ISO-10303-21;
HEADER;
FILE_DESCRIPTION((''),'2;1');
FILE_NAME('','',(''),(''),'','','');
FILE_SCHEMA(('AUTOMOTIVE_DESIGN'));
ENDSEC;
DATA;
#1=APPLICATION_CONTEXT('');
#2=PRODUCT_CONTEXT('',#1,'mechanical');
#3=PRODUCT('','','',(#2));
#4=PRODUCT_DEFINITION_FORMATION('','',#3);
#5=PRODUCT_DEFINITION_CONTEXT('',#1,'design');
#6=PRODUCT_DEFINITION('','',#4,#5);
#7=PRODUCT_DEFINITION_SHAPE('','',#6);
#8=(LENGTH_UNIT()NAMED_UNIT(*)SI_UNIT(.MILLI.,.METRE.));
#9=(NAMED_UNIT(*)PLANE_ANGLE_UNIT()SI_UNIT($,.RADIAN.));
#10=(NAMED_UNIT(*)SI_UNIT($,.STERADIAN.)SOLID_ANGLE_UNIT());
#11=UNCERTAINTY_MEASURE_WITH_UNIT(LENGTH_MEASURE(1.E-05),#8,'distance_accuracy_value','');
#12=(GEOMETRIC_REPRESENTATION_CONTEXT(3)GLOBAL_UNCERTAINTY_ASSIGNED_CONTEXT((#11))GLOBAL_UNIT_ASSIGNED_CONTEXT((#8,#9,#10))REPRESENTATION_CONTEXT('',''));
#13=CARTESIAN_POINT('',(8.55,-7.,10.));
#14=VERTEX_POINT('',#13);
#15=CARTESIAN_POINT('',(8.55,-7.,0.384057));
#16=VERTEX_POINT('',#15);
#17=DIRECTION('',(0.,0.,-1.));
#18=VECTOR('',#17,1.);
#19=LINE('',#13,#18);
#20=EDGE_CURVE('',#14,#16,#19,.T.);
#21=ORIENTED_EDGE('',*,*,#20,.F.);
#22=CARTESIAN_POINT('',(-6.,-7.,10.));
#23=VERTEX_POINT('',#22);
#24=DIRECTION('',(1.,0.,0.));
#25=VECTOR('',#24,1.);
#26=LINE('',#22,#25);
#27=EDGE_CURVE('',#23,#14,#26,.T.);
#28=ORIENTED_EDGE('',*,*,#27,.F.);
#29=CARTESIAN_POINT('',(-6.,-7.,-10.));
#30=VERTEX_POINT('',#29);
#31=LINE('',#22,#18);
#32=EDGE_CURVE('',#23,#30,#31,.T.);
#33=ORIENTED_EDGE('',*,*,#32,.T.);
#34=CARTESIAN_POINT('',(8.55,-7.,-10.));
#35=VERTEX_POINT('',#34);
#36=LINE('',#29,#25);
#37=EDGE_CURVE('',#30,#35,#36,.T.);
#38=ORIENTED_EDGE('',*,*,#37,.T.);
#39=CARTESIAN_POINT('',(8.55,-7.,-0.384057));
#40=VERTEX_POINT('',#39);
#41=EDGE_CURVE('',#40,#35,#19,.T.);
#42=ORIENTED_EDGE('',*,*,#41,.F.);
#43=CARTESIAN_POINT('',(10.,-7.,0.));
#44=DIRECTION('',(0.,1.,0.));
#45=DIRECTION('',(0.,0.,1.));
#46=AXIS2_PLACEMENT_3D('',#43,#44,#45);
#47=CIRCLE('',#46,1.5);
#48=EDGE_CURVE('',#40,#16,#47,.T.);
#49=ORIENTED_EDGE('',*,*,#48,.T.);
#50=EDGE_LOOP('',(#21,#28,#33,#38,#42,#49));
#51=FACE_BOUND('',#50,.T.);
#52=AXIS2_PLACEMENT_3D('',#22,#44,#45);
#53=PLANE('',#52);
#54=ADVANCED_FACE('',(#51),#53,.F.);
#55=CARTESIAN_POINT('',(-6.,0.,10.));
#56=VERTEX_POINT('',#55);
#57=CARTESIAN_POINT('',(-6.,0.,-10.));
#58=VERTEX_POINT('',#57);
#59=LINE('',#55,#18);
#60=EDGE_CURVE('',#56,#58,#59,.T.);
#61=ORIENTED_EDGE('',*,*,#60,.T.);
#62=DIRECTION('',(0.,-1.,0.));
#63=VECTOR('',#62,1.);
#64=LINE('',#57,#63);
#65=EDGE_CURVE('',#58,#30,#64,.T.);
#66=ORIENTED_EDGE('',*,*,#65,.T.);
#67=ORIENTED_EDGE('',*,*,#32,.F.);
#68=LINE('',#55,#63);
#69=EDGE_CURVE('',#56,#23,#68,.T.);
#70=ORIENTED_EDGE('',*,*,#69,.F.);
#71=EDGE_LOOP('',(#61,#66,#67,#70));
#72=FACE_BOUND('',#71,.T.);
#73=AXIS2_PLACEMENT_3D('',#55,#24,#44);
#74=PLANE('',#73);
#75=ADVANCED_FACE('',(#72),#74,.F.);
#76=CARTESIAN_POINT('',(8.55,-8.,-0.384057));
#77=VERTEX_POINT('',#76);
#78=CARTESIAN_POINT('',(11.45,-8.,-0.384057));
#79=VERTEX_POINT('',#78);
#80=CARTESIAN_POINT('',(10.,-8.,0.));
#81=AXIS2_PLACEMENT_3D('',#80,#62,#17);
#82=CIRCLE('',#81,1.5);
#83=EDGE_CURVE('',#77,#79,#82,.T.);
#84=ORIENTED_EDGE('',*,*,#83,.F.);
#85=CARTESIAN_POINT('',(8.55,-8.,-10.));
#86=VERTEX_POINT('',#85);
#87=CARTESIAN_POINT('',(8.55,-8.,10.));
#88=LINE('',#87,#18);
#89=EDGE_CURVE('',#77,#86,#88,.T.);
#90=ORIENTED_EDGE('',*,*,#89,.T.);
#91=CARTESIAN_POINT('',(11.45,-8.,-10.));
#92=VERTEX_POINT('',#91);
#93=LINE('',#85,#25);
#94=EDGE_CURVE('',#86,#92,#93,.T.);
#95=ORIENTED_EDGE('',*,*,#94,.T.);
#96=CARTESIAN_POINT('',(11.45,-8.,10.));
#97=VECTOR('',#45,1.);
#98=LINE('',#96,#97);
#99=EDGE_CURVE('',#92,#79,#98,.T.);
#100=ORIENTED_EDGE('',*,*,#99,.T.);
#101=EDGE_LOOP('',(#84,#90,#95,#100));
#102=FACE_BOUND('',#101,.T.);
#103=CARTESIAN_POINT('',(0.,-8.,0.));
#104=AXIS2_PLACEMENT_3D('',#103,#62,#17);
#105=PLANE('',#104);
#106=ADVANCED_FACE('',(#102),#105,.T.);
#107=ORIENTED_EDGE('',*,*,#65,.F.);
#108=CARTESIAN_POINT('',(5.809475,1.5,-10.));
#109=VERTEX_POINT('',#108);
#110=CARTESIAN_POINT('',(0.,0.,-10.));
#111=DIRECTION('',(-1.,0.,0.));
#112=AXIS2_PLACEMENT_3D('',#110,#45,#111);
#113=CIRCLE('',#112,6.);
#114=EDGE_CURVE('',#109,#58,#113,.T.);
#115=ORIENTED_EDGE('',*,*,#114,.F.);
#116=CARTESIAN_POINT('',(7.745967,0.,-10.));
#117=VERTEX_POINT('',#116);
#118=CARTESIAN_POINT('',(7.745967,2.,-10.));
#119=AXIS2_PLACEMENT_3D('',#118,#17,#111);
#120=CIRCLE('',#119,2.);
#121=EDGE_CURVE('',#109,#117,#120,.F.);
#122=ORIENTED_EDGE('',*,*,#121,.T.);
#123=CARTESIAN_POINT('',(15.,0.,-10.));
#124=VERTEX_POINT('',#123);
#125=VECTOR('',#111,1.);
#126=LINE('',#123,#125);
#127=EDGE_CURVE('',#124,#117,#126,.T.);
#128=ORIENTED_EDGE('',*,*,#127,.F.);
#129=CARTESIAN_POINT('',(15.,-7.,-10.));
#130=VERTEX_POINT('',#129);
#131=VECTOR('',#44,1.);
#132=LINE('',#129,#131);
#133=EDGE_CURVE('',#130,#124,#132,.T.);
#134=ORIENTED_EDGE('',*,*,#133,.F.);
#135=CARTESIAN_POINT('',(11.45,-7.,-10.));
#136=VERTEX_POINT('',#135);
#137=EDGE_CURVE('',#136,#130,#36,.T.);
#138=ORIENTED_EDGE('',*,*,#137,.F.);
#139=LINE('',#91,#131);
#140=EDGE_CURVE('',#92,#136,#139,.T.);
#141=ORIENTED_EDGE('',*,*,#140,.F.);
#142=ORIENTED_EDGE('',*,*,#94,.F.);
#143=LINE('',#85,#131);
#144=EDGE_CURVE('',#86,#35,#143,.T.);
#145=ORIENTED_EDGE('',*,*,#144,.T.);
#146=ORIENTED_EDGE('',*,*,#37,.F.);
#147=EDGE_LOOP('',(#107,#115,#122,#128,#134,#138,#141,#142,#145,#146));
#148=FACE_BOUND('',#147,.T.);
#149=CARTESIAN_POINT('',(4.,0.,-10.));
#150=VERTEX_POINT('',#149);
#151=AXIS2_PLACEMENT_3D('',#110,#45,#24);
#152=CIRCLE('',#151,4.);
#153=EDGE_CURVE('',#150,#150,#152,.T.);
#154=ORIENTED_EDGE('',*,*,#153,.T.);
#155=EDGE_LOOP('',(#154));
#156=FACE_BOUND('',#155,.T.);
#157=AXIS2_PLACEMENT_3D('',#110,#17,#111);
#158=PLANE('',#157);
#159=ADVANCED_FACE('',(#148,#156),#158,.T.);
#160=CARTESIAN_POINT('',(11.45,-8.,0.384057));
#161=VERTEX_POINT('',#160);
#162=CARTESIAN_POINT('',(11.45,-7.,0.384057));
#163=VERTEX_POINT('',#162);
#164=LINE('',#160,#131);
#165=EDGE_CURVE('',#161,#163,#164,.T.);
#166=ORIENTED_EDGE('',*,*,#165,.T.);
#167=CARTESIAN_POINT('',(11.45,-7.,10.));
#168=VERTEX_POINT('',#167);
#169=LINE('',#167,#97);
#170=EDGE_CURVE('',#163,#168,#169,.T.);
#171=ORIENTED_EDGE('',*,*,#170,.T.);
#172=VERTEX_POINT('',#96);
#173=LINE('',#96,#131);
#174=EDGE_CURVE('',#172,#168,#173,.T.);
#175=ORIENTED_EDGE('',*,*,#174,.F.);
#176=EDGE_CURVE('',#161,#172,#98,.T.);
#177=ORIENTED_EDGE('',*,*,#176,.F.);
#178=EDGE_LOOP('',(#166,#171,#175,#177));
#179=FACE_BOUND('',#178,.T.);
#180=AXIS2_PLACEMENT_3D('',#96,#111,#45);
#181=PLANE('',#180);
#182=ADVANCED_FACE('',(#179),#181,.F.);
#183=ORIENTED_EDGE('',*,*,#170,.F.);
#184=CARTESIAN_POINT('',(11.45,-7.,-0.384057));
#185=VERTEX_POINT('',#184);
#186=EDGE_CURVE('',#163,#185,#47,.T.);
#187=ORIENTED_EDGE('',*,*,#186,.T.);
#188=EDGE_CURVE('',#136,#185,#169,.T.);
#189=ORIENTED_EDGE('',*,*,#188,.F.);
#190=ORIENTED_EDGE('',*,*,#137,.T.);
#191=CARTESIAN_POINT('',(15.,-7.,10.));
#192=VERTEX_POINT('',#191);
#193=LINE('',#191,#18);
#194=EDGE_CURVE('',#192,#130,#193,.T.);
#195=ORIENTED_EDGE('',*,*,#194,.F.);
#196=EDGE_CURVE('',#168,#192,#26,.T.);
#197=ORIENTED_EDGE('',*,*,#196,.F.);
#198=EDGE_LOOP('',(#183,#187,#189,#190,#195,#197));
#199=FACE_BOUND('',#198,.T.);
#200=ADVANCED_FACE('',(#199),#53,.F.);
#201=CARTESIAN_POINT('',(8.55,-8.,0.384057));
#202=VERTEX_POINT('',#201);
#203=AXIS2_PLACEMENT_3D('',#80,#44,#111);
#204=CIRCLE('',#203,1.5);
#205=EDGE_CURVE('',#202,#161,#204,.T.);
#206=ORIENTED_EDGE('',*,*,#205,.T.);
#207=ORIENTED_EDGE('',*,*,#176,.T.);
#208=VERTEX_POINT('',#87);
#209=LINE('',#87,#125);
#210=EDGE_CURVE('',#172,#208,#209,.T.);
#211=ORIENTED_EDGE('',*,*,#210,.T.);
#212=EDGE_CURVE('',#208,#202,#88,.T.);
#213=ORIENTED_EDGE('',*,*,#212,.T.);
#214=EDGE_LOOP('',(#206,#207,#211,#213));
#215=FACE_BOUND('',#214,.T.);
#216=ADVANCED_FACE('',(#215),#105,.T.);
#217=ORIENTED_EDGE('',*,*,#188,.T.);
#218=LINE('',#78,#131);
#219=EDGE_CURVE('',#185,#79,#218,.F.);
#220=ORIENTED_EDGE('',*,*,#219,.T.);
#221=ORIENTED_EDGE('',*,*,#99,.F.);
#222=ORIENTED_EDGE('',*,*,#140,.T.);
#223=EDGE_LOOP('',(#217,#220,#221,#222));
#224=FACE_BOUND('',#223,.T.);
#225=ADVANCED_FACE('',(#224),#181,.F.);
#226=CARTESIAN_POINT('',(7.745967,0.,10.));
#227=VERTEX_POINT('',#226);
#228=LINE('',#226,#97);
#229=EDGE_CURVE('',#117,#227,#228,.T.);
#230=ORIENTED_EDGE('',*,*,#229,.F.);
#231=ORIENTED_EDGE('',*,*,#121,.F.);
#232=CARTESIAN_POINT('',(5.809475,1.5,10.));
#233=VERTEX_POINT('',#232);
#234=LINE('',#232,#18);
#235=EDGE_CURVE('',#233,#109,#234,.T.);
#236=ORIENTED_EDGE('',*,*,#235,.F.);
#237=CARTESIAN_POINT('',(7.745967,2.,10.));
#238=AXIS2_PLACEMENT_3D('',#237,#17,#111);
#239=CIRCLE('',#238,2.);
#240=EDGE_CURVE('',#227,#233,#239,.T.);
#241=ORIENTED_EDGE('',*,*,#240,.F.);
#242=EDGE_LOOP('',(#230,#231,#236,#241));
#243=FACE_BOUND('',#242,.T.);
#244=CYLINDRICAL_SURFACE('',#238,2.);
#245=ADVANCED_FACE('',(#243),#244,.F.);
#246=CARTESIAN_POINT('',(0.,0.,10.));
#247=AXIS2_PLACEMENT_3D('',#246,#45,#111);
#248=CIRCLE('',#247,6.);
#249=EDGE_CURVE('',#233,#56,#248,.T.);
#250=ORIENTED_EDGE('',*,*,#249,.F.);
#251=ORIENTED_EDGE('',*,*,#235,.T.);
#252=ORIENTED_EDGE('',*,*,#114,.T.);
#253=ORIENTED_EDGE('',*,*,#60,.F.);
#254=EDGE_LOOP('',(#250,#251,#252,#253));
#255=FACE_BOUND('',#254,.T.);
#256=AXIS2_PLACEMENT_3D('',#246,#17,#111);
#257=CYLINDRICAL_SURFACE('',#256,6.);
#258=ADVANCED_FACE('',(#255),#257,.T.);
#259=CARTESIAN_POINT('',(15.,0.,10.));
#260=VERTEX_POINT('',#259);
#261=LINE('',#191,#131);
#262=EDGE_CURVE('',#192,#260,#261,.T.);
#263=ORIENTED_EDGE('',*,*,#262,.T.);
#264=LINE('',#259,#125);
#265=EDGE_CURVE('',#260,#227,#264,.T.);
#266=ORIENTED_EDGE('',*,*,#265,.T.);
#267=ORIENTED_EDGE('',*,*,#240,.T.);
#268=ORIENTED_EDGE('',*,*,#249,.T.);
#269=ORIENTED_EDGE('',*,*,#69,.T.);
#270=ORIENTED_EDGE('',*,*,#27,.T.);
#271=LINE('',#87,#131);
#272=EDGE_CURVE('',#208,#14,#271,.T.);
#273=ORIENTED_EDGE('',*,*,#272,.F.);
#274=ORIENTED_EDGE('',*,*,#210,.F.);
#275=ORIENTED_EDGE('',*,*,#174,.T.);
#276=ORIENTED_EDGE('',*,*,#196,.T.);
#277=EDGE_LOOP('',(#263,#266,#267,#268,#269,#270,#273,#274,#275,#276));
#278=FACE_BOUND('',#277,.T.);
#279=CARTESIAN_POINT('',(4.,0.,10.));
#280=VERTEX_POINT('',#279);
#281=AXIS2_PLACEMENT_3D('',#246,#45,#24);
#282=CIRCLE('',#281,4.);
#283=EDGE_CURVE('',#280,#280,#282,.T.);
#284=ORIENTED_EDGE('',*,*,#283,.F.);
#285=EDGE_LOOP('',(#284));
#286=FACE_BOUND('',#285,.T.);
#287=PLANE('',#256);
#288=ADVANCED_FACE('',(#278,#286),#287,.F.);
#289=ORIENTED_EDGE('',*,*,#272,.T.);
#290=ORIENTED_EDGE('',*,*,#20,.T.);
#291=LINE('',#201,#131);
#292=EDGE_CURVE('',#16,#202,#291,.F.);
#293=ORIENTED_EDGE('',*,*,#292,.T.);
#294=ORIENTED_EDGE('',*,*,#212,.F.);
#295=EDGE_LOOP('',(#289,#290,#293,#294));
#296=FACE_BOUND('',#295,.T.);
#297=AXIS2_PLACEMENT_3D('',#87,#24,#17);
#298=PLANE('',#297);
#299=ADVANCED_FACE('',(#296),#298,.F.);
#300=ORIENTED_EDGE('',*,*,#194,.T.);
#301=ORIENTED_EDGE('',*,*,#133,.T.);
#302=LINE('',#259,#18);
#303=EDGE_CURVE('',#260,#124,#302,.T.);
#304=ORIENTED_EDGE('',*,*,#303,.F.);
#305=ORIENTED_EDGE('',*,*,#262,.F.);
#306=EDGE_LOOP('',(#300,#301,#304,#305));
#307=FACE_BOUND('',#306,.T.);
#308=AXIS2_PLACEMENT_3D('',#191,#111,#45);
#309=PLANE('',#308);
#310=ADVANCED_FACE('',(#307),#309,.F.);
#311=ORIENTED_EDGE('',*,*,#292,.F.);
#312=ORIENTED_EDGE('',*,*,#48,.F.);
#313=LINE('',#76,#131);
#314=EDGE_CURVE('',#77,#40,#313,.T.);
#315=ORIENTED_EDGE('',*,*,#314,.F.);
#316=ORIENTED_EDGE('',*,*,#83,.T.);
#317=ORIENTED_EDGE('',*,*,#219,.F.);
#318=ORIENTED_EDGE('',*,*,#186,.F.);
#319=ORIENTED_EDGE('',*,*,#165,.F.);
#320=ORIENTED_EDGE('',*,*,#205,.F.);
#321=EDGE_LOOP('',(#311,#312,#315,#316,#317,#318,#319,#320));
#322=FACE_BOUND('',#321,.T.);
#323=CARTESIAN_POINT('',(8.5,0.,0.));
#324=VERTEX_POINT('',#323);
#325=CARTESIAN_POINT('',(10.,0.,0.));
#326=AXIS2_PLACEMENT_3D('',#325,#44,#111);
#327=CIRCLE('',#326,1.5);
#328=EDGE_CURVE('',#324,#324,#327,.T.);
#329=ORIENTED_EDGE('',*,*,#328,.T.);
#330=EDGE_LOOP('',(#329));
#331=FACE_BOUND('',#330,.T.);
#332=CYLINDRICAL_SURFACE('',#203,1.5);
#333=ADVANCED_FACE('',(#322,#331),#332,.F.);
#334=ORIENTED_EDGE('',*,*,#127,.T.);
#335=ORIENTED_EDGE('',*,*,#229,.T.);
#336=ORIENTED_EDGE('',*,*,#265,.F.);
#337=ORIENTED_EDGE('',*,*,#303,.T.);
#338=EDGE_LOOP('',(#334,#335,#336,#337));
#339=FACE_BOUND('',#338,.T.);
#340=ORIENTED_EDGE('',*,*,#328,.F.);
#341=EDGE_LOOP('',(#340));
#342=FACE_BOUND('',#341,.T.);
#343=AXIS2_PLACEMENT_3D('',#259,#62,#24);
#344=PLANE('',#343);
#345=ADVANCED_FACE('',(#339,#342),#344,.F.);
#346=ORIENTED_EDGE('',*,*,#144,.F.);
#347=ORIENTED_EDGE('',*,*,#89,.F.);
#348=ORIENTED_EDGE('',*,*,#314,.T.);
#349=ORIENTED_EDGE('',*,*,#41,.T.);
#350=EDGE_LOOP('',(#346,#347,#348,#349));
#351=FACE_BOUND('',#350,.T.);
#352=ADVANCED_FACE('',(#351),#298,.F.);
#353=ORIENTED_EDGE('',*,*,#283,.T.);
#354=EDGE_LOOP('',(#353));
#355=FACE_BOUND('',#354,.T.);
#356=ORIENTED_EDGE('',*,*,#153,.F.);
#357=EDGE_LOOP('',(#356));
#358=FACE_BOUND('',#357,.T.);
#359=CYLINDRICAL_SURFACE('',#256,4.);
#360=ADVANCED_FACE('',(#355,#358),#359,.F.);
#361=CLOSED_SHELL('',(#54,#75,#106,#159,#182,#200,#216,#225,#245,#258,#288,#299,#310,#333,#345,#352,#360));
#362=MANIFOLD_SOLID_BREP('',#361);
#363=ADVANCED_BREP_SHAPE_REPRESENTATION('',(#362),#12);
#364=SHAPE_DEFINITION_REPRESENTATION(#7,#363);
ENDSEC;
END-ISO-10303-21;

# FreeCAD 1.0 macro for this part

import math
import FreeCAD as App
import Part
import Sketcher
Q = App.Units.Quantity


def edges_at(feature, points):
    """Names of the edges that pass closest to the given points."""
    edges = feature.Shape.Edges
    near = lambda p: min(range(len(edges)), key=lambda i: edges[i].distToShape(Part.Vertex(*p))[0])
    return sorted({f"Edge{near(p) + 1}" for p in points})

doc = App.newDocument("Part")
params = doc.addObject("Spreadsheet::Sheet", "Params")
for row, (alias, value) in enumerate([
    ("sketch1_diameter", "8 mm"),
    ("sketch1_radius", "6 mm"),
    ("sketch1_width", "21 mm"),
    ("sketch1_height", "7 mm"),
    ("pad1_length", "20 mm"),
    ("sketch2_height", "20 mm"),
    ("sketch2_width", "2.9 mm"),
    ("pad2_length", "1 mm"),
    ("sketch3_diameter", "3 mm"),
    ("fillet_radius", "2 mm"),
], start=1):
    params.set(f"A{row}", alias)
    params.set(f"B{row}", "=" + value)
    params.setAlias(f"B{row}", alias)

body = doc.addObject("PartDesign::Body", "Body")

sketch1 = body.newObject("Sketcher::SketchObject", "Sketch")
sketch1.AttachmentSupport = (doc.getObject("XY_Plane"), [""])
sketch1.MapMode = "FlatFace"
sketch1.addGeometry([
    Part.LineSegment(App.Vector(-6, 0, 0), App.Vector(-6, -7, 0)),
    Part.LineSegment(App.Vector(-6, -7, 0), App.Vector(15, -7, 0)),
    Part.LineSegment(App.Vector(15, -7, 0), App.Vector(15, 0, 0)),
    Part.LineSegment(App.Vector(15, 0, 0), App.Vector(6, 0, 0)),
    Part.ArcOfCircle(Part.Circle(App.Vector(0, 0, 0), App.Vector(0, 0, 1), 6), math.radians(0), math.radians(180)),
    Part.Circle(App.Vector(0, 0, 0), App.Vector(0, 0, 1), 4),
], False)
sketch1.addConstraint([
    Sketcher.Constraint("Coincident", 0, 2, 1, 1),
    Sketcher.Constraint("Coincident", 1, 2, 2, 1),
    Sketcher.Constraint("Coincident", 2, 2, 3, 1),
    Sketcher.Constraint("Coincident", 3, 2, 4, 1),
    Sketcher.Constraint("Tangent", 4, 2, 0, 1),
    Sketcher.Constraint("Vertical", 0),
    Sketcher.Constraint("Horizontal", 1),
    Sketcher.Constraint("Vertical", 2),
    Sketcher.Constraint("Horizontal", 3),
    Sketcher.Constraint("Coincident", 4, 3, -1, 1),
    Sketcher.Constraint("Coincident", 5, 3, -1, 1),
    Sketcher.Constraint("PointOnObject", 2, 2, -1),
    Sketcher.Constraint("Diameter", 5, Q("8 mm")),
    Sketcher.Constraint("Radius", 4, Q("6 mm")),
    Sketcher.Constraint("DistanceX", 1, 1, 1, 2, Q("21 mm")),
    Sketcher.Constraint("DistanceY", 0, 2, 0, 1, Q("7 mm")),
])
sketch1.setExpression("Constraints[12]", "Params.sketch1_diameter")
sketch1.setExpression("Constraints[13]", "Params.sketch1_radius")
sketch1.setExpression("Constraints[14]", "Params.sketch1_width")
sketch1.setExpression("Constraints[15]", "Params.sketch1_height")
pad1 = body.newObject("PartDesign::Pad", "Pad")
pad1.Profile = sketch1
pad1.setExpression("Length", "Params.pad1_length")
pad1.Midplane = True

sketch2 = body.newObject("Sketcher::SketchObject", "Sketch001")
sketch2.AttachmentSupport = (doc.getObject("XZ_Plane"), [""])
sketch2.MapMode = "FlatFace"
sketch2.AttachmentOffset = App.Placement(App.Vector(0, 0, 7), App.Rotation())
sketch2.addGeometry([
    Part.LineSegment(App.Vector(11.4, -10, 0), App.Vector(11.4, 10, 0)),
    Part.LineSegment(App.Vector(11.4, 10, 0), App.Vector(8.6, 10, 0)),
    Part.LineSegment(App.Vector(8.6, 10, 0), App.Vector(8.6, -10, 0)),
    Part.LineSegment(App.Vector(8.6, -10, 0), App.Vector(11.4, -10, 0)),
], False)
sketch2.addConstraint([
    Sketcher.Constraint("Coincident", 0, 2, 1, 1),
    Sketcher.Constraint("Coincident", 1, 2, 2, 1),
    Sketcher.Constraint("Coincident", 2, 2, 3, 1),
    Sketcher.Constraint("Coincident", 3, 2, 0, 1),
    Sketcher.Constraint("Vertical", 0),
    Sketcher.Constraint("Horizontal", 1),
    Sketcher.Constraint("Vertical", 2),
    Sketcher.Constraint("Horizontal", 3),
    Sketcher.Constraint("DistanceY", 0, 1, 0, 2, Q("20 mm")),
    Sketcher.Constraint("DistanceX", 1, 2, 1, 1, Q("2.9 mm")),
    Sketcher.Constraint("DistanceY", -1, 1, 0, 2, Q("10 mm")),
    Sketcher.Constraint("DistanceX", -1, 1, 0, 2, Q("11.45 mm")),
])
sketch2.setExpression("Constraints[8]", "Params.sketch2_height")
sketch2.setExpression("Constraints[9]", "Params.sketch2_width")
pad2 = body.newObject("PartDesign::Pad", "Pad001")
pad2.Profile = sketch2
pad2.setExpression("Length", "Params.pad2_length")

sketch3 = body.newObject("Sketcher::SketchObject", "Sketch002")
sketch3.AttachmentSupport = (doc.getObject("XZ_Plane"), [""])
sketch3.MapMode = "FlatFace"
sketch3.addGeometry(Part.Circle(App.Vector(10, 0, 0), App.Vector(0, 0, 1), 1.5), False)
sketch3.addConstraint([
    Sketcher.Constraint("PointOnObject", 0, 3, -1),
    Sketcher.Constraint("Diameter", 0, Q("3 mm")),
    Sketcher.Constraint("DistanceX", -1, 1, 0, 3, Q("10 mm")),
])
sketch3.setExpression("Constraints[1]", "Params.sketch3_diameter")
pocket1 = body.newObject("PartDesign::Pocket", "Pocket")
pocket1.Profile = sketch3
pocket1.Type = "ThroughAll"
pocket1.Reversed = True
doc.recompute()

fillet = body.newObject("PartDesign::Fillet", "Fillet")
fillet.Base = (pocket1, edges_at(pocket1, [(6, 0, 0)]))
fillet.setExpression("Radius", "Params.fillet_radius")

doc.recompute()
